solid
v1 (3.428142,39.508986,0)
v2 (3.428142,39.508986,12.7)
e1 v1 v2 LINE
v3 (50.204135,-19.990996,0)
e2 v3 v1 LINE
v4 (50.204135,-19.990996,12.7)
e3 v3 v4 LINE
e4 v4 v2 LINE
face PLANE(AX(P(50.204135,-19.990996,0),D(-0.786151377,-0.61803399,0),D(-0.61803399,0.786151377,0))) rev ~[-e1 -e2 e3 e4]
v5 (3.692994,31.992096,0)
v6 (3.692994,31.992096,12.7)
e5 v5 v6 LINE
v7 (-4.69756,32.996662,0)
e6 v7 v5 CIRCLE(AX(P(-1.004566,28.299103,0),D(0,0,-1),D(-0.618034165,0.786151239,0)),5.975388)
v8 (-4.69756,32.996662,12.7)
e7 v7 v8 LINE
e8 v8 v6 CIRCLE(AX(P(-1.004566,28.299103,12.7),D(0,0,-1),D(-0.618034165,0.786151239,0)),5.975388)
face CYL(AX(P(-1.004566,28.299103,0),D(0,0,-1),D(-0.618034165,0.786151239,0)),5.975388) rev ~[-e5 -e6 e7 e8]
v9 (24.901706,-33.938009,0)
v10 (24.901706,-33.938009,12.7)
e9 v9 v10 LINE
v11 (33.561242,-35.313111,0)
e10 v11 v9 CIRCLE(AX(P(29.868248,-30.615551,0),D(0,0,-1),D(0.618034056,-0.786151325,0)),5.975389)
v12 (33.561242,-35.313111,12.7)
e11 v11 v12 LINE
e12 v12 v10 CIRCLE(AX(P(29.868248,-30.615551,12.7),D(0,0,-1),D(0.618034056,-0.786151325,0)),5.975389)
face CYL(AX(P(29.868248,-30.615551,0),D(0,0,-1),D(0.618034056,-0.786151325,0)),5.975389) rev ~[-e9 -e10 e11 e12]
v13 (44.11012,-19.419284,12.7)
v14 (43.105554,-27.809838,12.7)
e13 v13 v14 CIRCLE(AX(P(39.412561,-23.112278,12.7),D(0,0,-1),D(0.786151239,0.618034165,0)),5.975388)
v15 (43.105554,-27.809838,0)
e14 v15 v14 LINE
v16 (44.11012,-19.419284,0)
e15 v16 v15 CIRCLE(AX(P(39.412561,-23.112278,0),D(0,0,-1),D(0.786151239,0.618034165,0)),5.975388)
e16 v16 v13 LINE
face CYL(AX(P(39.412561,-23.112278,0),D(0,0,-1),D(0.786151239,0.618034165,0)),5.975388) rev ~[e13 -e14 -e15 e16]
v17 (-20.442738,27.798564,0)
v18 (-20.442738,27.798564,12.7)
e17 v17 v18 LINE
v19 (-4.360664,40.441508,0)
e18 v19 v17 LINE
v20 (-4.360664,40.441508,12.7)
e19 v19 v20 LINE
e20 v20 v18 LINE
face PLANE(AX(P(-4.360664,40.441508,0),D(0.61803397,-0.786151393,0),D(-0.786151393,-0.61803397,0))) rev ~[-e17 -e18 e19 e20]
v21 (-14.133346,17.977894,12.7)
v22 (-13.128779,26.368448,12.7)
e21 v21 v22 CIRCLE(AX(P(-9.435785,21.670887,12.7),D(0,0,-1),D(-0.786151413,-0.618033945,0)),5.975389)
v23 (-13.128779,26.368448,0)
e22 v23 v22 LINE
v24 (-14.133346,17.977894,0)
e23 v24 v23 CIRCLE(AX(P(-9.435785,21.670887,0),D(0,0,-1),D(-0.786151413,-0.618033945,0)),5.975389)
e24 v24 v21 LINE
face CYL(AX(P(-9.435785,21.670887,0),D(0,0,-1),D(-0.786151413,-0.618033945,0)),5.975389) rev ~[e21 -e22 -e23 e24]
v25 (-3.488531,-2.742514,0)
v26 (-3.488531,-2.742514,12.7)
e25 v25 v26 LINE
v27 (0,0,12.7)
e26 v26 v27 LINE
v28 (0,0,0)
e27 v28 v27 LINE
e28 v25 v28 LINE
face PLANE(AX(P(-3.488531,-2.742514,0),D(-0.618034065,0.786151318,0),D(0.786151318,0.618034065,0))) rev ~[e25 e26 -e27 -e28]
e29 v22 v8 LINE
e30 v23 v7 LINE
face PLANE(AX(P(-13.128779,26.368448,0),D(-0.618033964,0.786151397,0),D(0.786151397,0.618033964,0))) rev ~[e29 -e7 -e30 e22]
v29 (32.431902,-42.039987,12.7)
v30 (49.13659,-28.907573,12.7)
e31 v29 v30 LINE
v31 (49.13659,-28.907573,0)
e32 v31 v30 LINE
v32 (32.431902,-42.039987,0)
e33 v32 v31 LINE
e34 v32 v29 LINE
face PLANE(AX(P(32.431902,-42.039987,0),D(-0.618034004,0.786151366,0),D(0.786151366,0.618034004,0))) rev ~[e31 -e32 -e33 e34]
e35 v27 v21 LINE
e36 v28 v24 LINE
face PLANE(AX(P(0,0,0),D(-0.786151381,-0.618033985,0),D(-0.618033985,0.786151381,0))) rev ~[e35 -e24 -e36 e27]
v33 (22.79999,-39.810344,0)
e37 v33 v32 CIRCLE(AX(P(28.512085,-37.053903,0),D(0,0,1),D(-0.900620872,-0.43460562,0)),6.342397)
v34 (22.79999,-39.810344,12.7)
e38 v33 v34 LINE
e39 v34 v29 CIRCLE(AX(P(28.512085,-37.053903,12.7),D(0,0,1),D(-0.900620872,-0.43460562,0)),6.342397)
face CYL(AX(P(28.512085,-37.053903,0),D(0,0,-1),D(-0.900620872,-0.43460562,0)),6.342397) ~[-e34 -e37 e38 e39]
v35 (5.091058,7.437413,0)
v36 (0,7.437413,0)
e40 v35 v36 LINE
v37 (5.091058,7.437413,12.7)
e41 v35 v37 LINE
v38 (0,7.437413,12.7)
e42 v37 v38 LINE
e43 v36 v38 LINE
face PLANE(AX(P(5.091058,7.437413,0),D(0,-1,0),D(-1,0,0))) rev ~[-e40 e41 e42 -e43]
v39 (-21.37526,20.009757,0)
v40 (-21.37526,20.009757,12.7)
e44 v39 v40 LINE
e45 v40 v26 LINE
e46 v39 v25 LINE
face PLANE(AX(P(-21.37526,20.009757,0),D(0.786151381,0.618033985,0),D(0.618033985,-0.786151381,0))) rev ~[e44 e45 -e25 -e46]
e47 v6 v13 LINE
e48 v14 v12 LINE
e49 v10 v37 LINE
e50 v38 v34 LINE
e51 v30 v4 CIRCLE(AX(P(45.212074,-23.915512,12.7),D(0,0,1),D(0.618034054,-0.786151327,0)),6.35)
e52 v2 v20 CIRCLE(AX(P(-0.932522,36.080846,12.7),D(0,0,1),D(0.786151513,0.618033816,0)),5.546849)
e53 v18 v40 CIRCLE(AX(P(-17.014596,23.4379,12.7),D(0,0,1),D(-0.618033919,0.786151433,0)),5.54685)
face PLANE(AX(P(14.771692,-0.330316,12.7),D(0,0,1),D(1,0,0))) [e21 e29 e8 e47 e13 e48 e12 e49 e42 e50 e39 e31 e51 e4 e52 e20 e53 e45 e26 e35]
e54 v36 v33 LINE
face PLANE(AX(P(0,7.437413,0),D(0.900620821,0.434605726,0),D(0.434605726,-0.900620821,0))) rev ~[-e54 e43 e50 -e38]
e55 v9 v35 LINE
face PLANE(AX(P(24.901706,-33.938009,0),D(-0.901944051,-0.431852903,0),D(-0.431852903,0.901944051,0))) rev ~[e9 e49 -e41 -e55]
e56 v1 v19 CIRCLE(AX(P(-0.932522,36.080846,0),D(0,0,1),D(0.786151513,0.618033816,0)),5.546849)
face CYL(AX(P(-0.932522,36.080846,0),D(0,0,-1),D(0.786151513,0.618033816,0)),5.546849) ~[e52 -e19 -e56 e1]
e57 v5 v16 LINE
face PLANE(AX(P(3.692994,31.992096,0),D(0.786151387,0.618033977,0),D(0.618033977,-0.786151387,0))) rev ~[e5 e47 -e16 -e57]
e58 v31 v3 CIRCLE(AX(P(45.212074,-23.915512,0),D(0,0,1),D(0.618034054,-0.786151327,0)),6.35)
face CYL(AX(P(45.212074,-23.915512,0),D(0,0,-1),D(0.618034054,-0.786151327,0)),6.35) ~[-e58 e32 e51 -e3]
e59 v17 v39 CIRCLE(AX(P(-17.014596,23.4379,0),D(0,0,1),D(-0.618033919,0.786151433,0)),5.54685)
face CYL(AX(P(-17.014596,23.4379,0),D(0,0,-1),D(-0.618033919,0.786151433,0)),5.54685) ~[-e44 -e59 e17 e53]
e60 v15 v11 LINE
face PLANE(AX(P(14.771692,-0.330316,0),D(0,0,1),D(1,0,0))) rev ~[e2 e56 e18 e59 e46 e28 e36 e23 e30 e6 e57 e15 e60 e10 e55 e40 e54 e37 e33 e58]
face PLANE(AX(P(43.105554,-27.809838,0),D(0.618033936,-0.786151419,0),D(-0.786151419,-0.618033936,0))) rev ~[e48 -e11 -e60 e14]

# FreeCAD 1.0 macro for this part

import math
import FreeCAD as App
import Part
import Sketcher
Q = App.Units.Quantity

doc = App.newDocument("Part")
body = doc.addObject("PartDesign::Body", "Body")

# Sketch on XY plane
sketch1 = doc.addObject("Sketcher::SketchObject", "Sketch")
body.addObject(sketch1)
sketch1.AttachmentSupport = (doc.XY_Plane, [""])
sketch1.MapMode = "FlatFace"
sketch1.addGeometry(Part.LineSegment(App.Vector(-3.488531, -2.742514, 0), App.Vector(0, 0, 0)), False)
sketch1.addGeometry(Part.LineSegment(App.Vector(0, 0, 0), App.Vector(-14.133346, 17.977894, 0)), False)
sketch1.addGeometry(Part.ArcOfCircle(Part.Circle(App.Vector(-9.435785, 21.670887, 0), App.Vector(0, 0, 1), 5.975389), math.radians(128.172708), math.radians(218.172704)), False)
sketch1.addGeometry(Part.LineSegment(App.Vector(-13.128779, 26.368448, 0), App.Vector(-4.69756, 32.996662, 0)), False)
sketch1.addGeometry(Part.ArcOfCircle(Part.Circle(App.Vector(-1.004566, 28.299103, 0), App.Vector(0, 0, 1), 5.975388), math.radians(38.172706), math.radians(128.17272)), False)
sketch1.addGeometry(Part.LineSegment(App.Vector(3.692994, 31.992096, 0), App.Vector(44.11012, -19.419284, 0)), False)
sketch1.addGeometry(Part.ArcOfCircle(Part.Circle(App.Vector(39.412561, -23.112278, 0), App.Vector(0, 0, 1), 5.975388), math.radians(-51.827294), math.radians(38.17272)), False)
sketch1.addGeometry(Part.LineSegment(App.Vector(43.105554, -27.809838, 0), App.Vector(33.561242, -35.313111, 0)), False)
sketch1.addGeometry(Part.ArcOfCircle(Part.Circle(App.Vector(29.868248, -30.615551, 0), App.Vector(0, 0, 1), 5.975389), math.radians(-146.218747), math.radians(-51.827287)), False)
sketch1.addGeometry(Part.LineSegment(App.Vector(24.901706, -33.938009, 0), App.Vector(5.091058, 7.437413, 0)), False)
sketch1.addGeometry(Part.LineSegment(App.Vector(5.091058, 7.437413, 0), App.Vector(0, 7.437413, 0)), False)
sketch1.addGeometry(Part.LineSegment(App.Vector(0, 7.437413, 0), App.Vector(22.79999, -39.810344, 0)), False)
sketch1.addGeometry(Part.ArcOfCircle(Part.Circle(App.Vector(28.512085, -37.053903, 0), App.Vector(0, 0, 1), 6.342397), math.radians(-154.239798), math.radians(-51.827295)), False)
sketch1.addGeometry(Part.LineSegment(App.Vector(32.431902, -42.039987, 0), App.Vector(49.13659, -28.907573, 0)), False)
sketch1.addGeometry(Part.ArcOfCircle(Part.Circle(App.Vector(45.212074, -23.915512, 0), App.Vector(0, 0, 1), 6.35), math.radians(-51.827288), math.radians(38.172708)), False)
sketch1.addGeometry(Part.LineSegment(App.Vector(50.204135, -19.990996, 0), App.Vector(3.428142, 39.508986, 0)), False)
sketch1.addGeometry(Part.ArcOfCircle(Part.Circle(App.Vector(-0.932522, 36.080846, 0), App.Vector(0, 0, 1), 5.546849), math.radians(38.172695), math.radians(128.17272)), False)
sketch1.addGeometry(Part.LineSegment(App.Vector(-4.360664, 40.441508, 0), App.Vector(-20.442738, 27.798564, 0)), False)
sketch1.addGeometry(Part.ArcOfCircle(Part.Circle(App.Vector(-17.014596, 23.4379, 0), App.Vector(0, 0, 1), 5.54685), math.radians(128.172703), math.radians(218.172714)), False)
sketch1.addGeometry(Part.LineSegment(App.Vector(-21.37526, 20.009757, 0), App.Vector(-3.488531, -2.742514, 0)), False)
sketch1.addConstraint(Sketcher.Constraint("Coincident", 0, 2, 1, 1))
sketch1.addConstraint(Sketcher.Constraint("Tangent", 1, 2, 2, 2))
sketch1.addConstraint(Sketcher.Constraint("Tangent", 2, 1, 3, 1))
sketch1.addConstraint(Sketcher.Constraint("Tangent", 3, 2, 4, 2))
sketch1.addConstraint(Sketcher.Constraint("Tangent", 4, 1, 5, 1))
sketch1.addConstraint(Sketcher.Constraint("Tangent", 5, 2, 6, 2))
sketch1.addConstraint(Sketcher.Constraint("Tangent", 6, 1, 7, 1))
sketch1.addConstraint(Sketcher.Constraint("Tangent", 7, 2, 8, 2))
sketch1.addConstraint(Sketcher.Constraint("Coincident", 8, 1, 9, 1))
sketch1.addConstraint(Sketcher.Constraint("Coincident", 9, 2, 10, 1))
sketch1.addConstraint(Sketcher.Constraint("Coincident", 10, 2, 11, 1))
sketch1.addConstraint(Sketcher.Constraint("Tangent", 11, 2, 12, 1))
sketch1.addConstraint(Sketcher.Constraint("Tangent", 12, 2, 13, 1))
sketch1.addConstraint(Sketcher.Constraint("Tangent", 13, 2, 14, 1))
sketch1.addConstraint(Sketcher.Constraint("Tangent", 14, 2, 15, 1))
sketch1.addConstraint(Sketcher.Constraint("Tangent", 15, 2, 16, 1))
sketch1.addConstraint(Sketcher.Constraint("Tangent", 16, 2, 17, 1))
sketch1.addConstraint(Sketcher.Constraint("Tangent", 17, 2, 18, 1))
sketch1.addConstraint(Sketcher.Constraint("Tangent", 18, 2, 19, 1))
sketch1.addConstraint(Sketcher.Constraint("Coincident", 19, 2, 0, 1))
sketch1.addConstraint(Sketcher.Constraint("Horizontal", 10))
sketch1.addConstraint(Sketcher.Constraint("Coincident", 0, 2, -1, 1))
sketch1.addConstraint(Sketcher.Constraint("Equal", 2, 4))
sketch1.addConstraint(Sketcher.Constraint("Equal", 4, 6))
sketch1.addConstraint(Sketcher.Constraint("Equal", 6, 8))
sketch1.addConstraint(Sketcher.Constraint("Equal", 16, 18))
sketch1.addConstraint(Sketcher.Constraint("PointOnObject", 10, 2, -2))
sketch1.addConstraint(Sketcher.Constraint("Perpendicular", 0, 1))
sketch1.addConstraint(Sketcher.Constraint("Perpendicular", 1, 3))
sketch1.addConstraint(Sketcher.Constraint("Perpendicular", 3, 5))
sketch1.addConstraint(Sketcher.Constraint("Perpendicular", 5, 7))
sketch1.addConstraint(Sketcher.Constraint("Parallel", 7, 13))
sketch1.addConstraint(Sketcher.Constraint("Perpendicular", 13, 15))
sketch1.addConstraint(Sketcher.Constraint("Perpendicular", 15, 17))
sketch1.addConstraint(Sketcher.Constraint("Perpendicular", 17, 19))
sketch1.addConstraint(Sketcher.Constraint("Radius", 14, Q("0.25 in")))
sketch1.addConstraint(Sketcher.Constraint("Radius", 2, Q("5.975389 mm")))
sketch1.addConstraint(Sketcher.Constraint("Radius", 16, Q("5.546849 mm")))
sketch1.addConstraint(Sketcher.Constraint("Radius", 12, Q("6.342397 mm")))
sketch1.addConstraint(Sketcher.Constraint("Distance", 9, Q("45.873602 mm")))
sketch1.addConstraint(Sketcher.Constraint("DistanceX", 10, 2, 10, 1, Q("5.091058 mm")))
sketch1.addConstraint(Sketcher.Constraint("DistanceY", -1, 1, 18, 3, Q("23.4379 mm")))
sketch1.addConstraint(Sketcher.Constraint("DistanceX", -1, 1, 12, 2, Q("32.431902 mm")))
sketch1.addConstraint(Sketcher.Constraint("DistanceY", 14, 3, 2, 3, Q("45.586399 mm")))
sketch1.addConstraint(Sketcher.Constraint("DistanceY", 7, 2, 14, 3, Q("11.397599 mm")))
sketch1.addConstraint(Sketcher.Constraint("DistanceY", 7, 2, 8, 1, Q("1.375102 mm")))
sketch1.addConstraint(Sketcher.Constraint("DistanceX", 16, 2, 4, 3, Q("3.356098 mm")))
sketch1.addConstraint(Sketcher.Constraint("DistanceY", 17, 2, 3, 2, Q("5.198098 mm")))
sketch1.addConstraint(Sketcher.Constraint("DistanceY", 19, 2, 2, 3, Q("24.413401 mm")))
sketch1.addConstraint(Sketcher.Constraint("Distance", 0, Q("4.43748 mm")))
sketch1.addConstraint(Sketcher.Constraint("Distance", 7, Q("12.140552 mm")))
sketch1.addConstraint(Sketcher.Constraint("Distance", 11, Q("52.46132 mm")))
pad1 = doc.addObject("PartDesign::Pad", "Pad")
body.addObject(pad1)
pad1.Profile = sketch1
pad1.Length = Q("0.5 in")

doc.recompute()
